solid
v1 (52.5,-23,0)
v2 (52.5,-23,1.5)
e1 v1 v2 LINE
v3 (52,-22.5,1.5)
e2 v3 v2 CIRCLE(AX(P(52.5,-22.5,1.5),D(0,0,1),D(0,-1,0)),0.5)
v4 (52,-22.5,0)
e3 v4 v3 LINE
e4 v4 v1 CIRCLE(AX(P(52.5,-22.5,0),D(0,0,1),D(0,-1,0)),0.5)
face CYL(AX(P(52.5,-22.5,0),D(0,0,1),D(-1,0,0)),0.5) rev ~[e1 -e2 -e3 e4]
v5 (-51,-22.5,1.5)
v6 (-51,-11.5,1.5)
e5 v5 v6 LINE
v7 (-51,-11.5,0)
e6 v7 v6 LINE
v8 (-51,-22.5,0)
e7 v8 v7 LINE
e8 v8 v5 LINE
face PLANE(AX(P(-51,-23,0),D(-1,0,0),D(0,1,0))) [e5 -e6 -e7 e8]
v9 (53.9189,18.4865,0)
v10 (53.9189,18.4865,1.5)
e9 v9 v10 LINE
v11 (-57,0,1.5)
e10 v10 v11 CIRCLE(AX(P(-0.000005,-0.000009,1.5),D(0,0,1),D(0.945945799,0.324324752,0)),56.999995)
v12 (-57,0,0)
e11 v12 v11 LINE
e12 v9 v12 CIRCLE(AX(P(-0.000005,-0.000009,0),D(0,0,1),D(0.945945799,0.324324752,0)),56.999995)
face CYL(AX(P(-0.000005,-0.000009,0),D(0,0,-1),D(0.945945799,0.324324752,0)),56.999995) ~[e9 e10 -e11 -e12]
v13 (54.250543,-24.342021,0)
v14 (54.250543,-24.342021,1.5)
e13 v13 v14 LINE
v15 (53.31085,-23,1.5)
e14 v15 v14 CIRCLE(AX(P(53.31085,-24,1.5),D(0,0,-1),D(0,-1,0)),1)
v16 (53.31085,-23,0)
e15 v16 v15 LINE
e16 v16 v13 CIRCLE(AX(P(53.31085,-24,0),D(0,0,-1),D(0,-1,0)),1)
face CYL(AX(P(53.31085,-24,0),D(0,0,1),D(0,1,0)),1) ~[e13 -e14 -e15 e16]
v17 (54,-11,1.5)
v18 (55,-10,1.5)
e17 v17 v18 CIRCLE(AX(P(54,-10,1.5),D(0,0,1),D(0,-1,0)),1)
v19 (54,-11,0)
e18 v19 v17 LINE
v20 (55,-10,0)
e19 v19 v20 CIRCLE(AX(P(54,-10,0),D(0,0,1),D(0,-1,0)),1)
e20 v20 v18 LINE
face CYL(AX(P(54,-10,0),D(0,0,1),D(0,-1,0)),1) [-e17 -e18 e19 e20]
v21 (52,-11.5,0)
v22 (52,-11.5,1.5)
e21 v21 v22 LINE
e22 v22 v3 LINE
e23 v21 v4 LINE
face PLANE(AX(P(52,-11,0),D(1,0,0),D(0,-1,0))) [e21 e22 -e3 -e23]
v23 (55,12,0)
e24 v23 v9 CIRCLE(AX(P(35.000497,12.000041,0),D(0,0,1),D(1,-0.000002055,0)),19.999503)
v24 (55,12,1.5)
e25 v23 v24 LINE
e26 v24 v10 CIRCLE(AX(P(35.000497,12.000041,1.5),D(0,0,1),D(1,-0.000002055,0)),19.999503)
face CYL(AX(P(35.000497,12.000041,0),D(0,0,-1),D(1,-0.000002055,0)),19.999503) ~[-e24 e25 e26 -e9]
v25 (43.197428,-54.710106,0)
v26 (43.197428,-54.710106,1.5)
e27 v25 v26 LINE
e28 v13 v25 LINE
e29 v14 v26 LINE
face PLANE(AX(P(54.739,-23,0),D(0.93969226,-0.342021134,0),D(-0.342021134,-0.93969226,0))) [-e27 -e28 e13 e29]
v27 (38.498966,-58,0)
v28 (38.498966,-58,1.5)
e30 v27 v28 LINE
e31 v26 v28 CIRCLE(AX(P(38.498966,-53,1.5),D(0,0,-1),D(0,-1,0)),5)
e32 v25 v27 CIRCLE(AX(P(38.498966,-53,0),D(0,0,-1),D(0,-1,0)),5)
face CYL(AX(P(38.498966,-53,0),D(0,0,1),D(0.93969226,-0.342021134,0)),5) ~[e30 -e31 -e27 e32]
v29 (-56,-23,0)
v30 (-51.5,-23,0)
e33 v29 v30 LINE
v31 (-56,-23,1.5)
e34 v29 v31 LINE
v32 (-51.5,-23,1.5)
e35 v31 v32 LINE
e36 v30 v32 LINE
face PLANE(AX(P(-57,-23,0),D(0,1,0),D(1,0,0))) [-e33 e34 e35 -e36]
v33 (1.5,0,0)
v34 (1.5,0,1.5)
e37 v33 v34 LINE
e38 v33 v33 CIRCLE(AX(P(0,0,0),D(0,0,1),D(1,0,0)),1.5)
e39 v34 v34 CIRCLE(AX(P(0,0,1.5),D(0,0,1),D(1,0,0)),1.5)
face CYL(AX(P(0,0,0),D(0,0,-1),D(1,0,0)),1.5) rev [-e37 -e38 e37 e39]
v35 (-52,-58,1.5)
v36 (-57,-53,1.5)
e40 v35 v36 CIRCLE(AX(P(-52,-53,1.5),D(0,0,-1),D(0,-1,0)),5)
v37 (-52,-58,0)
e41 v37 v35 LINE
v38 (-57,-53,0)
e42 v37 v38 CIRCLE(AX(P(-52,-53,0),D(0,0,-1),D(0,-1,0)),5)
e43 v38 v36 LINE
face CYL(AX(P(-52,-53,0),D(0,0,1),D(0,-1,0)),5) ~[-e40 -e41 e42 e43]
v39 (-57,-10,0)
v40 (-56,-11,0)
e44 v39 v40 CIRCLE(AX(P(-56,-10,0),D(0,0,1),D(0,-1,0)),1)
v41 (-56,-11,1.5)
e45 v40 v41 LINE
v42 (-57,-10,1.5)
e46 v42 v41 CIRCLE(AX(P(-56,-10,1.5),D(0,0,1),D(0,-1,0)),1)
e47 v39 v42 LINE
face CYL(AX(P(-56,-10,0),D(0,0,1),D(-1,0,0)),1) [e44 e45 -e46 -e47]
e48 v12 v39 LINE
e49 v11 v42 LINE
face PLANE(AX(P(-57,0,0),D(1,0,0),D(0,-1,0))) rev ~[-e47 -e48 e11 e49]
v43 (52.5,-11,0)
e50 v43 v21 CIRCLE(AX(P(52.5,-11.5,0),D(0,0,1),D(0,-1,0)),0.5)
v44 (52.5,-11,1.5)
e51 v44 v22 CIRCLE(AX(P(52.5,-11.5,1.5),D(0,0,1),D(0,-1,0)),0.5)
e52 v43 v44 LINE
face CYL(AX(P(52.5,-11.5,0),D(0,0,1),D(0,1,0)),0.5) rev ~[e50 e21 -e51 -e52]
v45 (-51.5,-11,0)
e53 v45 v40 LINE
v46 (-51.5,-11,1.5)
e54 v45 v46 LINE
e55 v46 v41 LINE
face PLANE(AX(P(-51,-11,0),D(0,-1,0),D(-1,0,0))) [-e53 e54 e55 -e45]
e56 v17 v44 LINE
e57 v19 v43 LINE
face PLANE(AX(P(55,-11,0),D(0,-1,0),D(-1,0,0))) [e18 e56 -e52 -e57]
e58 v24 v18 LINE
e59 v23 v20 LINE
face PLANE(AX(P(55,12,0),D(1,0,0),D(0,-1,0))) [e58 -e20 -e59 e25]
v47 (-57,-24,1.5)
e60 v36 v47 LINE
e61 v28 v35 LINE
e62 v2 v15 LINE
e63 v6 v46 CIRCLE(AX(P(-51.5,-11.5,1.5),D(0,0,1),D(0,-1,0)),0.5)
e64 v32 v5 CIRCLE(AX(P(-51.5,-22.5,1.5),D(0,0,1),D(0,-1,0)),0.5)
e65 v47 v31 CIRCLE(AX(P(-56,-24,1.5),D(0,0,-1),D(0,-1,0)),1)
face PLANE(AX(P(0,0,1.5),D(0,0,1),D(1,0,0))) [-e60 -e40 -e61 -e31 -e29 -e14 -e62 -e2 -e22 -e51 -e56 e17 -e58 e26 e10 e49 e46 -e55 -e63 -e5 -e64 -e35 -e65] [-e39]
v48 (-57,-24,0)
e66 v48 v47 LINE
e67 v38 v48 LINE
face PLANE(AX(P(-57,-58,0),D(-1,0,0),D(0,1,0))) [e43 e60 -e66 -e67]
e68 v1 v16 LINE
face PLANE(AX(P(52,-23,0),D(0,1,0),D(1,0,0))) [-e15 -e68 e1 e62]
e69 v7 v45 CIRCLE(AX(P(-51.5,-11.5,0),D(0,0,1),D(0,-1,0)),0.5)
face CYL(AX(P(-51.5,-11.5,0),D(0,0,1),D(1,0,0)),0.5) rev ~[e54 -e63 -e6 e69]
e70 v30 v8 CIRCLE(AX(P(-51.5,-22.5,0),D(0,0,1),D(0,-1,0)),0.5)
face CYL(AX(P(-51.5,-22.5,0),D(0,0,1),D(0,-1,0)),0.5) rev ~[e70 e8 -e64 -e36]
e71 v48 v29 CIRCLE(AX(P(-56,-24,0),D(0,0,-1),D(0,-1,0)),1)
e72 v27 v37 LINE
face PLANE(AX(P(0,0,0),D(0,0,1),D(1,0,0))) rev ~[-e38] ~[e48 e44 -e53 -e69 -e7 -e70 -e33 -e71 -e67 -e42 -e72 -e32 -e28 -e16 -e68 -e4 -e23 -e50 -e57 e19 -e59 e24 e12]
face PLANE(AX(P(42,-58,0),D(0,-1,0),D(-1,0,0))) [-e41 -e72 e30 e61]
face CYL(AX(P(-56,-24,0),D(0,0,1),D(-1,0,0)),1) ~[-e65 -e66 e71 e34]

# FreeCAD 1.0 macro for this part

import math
import FreeCAD as App
import Part
import Sketcher
from FreeCAD import Vector
Q = App.Units.Quantity


def edges_at(feature, points):
    """Names of the edges that pass closest to the given points."""
    edges = feature.Shape.Edges
    near = lambda p: min(range(len(edges)), key=lambda i: edges[i].distToShape(Part.Vertex(*p))[0])
    return sorted({f"Edge{near(p) + 1}" for p in points})

doc = App.newDocument("Part")
body = doc.addObject("PartDesign::Body", "Body")

# Sketch on XY plane
sketch1 = body.newObject("Sketcher::SketchObject", "Sketch")
sketch1.AttachmentSupport = (doc.getObject("XY_Plane"), [""])
sketch1.MapMode = "FlatFace"
sketch1.addGeometry([
    Part.ArcOfCircle(Part.Circle(Vector(35, 12, 0), Vector(0, 0, 1), 20), math.radians(0), math.radians(18.92)),  # 0
    Part.ArcOfCircle(Part.Circle(Vector(0, 0, 0), Vector(0, 0, 1), 57), math.radians(19), math.radians(180)),  # 1
    Part.LineSegment(Vector(-57, 0, 0), Vector(-57, -11, 0)),  # 2
    Part.LineSegment(Vector(-57, -11, 0), Vector(-51, -11, 0)),  # 3
    Part.LineSegment(Vector(-51, -11, 0), Vector(-51, -23, 0)),  # 4
    Part.LineSegment(Vector(-51, -23, 0), Vector(-57, -23, 0)),  # 5
    Part.LineSegment(Vector(-57, -23, 0), Vector(-57, -58, 0)),  # 6
    Part.LineSegment(Vector(-57, -58, 0), Vector(42, -58, 0)),  # 7
    Part.LineSegment(Vector(42, -58, 0), Vector(54.7, -23, 0)),  # 8
    Part.LineSegment(Vector(54.7, -23, 0), Vector(52, -23, 0)),  # 9
    Part.LineSegment(Vector(52, -23, 0), Vector(52, -11, 0)),  # 10
    Part.LineSegment(Vector(52, -11, 0), Vector(55, -11, 0)),  # 11
    Part.LineSegment(Vector(55, -11, 0), Vector(55, 12, 0)),  # 12
    Part.Circle(Vector(0, 0, 0), Vector(0, 0, 1), 1.5),  # 13
], False)
sketch1.addConstraint([
    Sketcher.Constraint("Tangent", 0, 2, 1, 1),
    Sketcher.Constraint("Tangent", 1, 2, 2, 1),
    Sketcher.Constraint("Coincident", 2, 2, 3, 1),
    Sketcher.Constraint("Coincident", 3, 2, 4, 1),
    Sketcher.Constraint("Coincident", 4, 2, 5, 1),
    Sketcher.Constraint("Coincident", 5, 2, 6, 1),
    Sketcher.Constraint("Coincident", 6, 2, 7, 1),
    Sketcher.Constraint("Coincident", 7, 2, 8, 1),
    Sketcher.Constraint("Coincident", 8, 2, 9, 1),
    Sketcher.Constraint("Coincident", 9, 2, 10, 1),
    Sketcher.Constraint("Coincident", 10, 2, 11, 1),
    Sketcher.Constraint("Coincident", 11, 2, 12, 1),
    Sketcher.Constraint("Tangent", 12, 2, 0, 1),
    Sketcher.Constraint("Vertical", 2),
    Sketcher.Constraint("Horizontal", 3),
    Sketcher.Constraint("Vertical", 4),
    Sketcher.Constraint("Horizontal", 5),
    Sketcher.Constraint("Vertical", 6),
    Sketcher.Constraint("Horizontal", 7),
    Sketcher.Constraint("Horizontal", 9),
    Sketcher.Constraint("Vertical", 10),
    Sketcher.Constraint("Horizontal", 11),
    Sketcher.Constraint("Vertical", 12),
    Sketcher.Constraint("Coincident", 1, 3, -1, 1),
    Sketcher.Constraint("Coincident", 13, 3, -1, 1),
    Sketcher.Constraint("Horizontal", 5, 2, 8, 2),
    Sketcher.Constraint("Horizontal", 3, 2, 10, 2),
    Sketcher.Constraint("Vertical", 2, 2, 5, 2),
    Sketcher.Constraint("Diameter", 13, 3.0),
    Sketcher.Constraint("Radius", 0, 20.0),
    Sketcher.Constraint("Radius", 1, 57.0),
    Sketcher.Constraint("DistanceX", 3, 1, 3, 2, 6.0),
    Sketcher.Constraint("DistanceX", 7, 1, 7, 2, 99.0),
    Sketcher.Constraint("DistanceX", 11, 1, 11, 2, 3.0),
    Sketcher.Constraint("DistanceY", 4, 2, 4, 1, 12.0),
    Sketcher.Constraint("DistanceY", -1, 1, 0, 3, 12.0),
    Sketcher.Constraint("DistanceY", 6, 2, -1, 1, 58.0),
    Sketcher.Constraint("DistanceY", 6, 2, 2, 2, 47.0),
    Sketcher.Constraint("Angle", 8, Q("70 deg")),
])
pad1 = body.newObject("PartDesign::Pad", "Pad")
pad1.Profile = sketch1
pad1.Length = 1.5
doc.recompute()

fillet = body.newObject("PartDesign::Fillet", "Fillet")
fillet.Base = (pad1, edges_at(pad1, [
    (52, -11, 0.75),
    (52, -23, 0.75),
    (-51, -11, 0.75),
    (-51, -23, 0.75),
]))
fillet.Radius = 0.5
doc.recompute()

fillet2 = body.newObject("PartDesign::Fillet", "Fillet001")
fillet2.Base = (fillet, edges_at(fillet, [
    (-57, -11, 0.75),
    (-57, -23, 0.75),
    (54.739, -23, 0.75),
    (55, -11, 0.75),
]))
fillet2.Radius = 1
doc.recompute()

fillet3 = body.newObject("PartDesign::Fillet", "Fillet002")
fillet3.Base = (fillet2, edges_at(fillet2, [(42, -58, 0.75), (-57, -58, 0.75)]))
fillet3.Radius = 5

doc.recompute()
